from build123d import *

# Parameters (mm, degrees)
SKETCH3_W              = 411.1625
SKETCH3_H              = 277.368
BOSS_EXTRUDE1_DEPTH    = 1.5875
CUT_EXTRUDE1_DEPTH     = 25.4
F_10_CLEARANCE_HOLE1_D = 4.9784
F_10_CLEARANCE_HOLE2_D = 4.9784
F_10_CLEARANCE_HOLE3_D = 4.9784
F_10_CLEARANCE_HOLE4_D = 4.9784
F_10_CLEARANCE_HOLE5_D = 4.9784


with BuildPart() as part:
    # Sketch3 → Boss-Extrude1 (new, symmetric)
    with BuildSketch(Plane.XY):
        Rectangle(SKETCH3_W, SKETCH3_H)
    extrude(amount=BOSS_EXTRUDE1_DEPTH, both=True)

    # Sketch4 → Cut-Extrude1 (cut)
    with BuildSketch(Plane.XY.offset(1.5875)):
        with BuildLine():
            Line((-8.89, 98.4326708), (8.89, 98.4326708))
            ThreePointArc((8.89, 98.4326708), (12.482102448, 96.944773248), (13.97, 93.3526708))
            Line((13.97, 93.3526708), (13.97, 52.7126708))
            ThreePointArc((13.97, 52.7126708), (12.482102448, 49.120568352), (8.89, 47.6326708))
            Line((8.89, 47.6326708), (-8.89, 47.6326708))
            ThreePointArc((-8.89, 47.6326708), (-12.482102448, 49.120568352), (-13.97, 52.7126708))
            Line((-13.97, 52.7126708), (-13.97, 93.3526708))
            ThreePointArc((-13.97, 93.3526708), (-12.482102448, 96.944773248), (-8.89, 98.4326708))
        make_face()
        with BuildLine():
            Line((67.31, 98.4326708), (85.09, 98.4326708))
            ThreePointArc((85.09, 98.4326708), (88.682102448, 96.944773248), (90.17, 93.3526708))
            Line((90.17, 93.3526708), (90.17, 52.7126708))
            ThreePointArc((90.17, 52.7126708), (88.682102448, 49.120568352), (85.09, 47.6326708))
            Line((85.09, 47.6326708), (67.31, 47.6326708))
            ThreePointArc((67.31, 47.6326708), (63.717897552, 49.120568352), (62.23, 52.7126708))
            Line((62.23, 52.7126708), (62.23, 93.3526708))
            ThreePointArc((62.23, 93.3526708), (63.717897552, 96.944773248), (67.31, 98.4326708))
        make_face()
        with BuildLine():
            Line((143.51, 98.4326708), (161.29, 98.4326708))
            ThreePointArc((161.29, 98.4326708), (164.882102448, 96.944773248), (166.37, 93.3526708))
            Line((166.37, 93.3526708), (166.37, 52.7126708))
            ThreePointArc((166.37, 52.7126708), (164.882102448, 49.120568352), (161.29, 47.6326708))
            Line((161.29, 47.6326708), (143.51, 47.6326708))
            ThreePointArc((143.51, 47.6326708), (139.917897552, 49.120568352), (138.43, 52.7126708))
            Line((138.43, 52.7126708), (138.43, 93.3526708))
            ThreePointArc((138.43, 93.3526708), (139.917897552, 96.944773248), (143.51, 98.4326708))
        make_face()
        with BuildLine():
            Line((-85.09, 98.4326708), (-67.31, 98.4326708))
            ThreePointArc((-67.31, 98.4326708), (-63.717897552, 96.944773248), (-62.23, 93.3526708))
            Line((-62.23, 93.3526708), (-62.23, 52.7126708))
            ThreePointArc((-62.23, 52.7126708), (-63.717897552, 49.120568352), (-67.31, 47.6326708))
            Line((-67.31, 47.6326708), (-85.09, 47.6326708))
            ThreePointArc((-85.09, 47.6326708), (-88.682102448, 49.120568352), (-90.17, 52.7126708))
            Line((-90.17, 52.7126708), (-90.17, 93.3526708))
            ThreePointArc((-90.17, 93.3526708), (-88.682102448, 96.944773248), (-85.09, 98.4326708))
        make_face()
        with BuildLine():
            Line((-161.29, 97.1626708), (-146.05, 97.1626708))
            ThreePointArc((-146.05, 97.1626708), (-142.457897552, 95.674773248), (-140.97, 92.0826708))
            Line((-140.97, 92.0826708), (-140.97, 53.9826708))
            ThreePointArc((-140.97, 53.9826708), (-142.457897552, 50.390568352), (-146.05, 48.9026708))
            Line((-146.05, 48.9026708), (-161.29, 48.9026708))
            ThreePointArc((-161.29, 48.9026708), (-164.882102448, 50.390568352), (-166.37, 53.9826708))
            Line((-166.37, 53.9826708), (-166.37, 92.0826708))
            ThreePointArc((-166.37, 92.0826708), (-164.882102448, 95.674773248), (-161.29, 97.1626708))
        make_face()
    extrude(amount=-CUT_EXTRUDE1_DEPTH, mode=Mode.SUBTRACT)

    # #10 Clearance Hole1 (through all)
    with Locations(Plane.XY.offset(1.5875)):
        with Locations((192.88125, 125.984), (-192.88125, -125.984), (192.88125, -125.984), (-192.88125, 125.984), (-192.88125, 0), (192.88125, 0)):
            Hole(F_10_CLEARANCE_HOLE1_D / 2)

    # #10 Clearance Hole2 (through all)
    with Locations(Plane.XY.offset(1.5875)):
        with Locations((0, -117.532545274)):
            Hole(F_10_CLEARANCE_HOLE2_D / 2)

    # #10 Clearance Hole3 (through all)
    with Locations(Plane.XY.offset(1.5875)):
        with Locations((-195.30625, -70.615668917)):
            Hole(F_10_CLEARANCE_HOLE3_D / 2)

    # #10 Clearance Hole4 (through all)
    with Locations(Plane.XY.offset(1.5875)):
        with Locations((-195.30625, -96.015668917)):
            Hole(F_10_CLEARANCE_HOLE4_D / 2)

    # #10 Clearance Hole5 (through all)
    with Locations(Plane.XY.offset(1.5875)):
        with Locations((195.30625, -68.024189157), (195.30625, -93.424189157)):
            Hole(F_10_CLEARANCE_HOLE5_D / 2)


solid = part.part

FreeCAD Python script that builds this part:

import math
import FreeCAD as App
import Part
import Sketcher
from FreeCAD import Vector
Q = App.Units.Quantity


def add_polygon(sketch, points):
    """Adds a closed chain of lines whose ends are joined by coincident constraints."""
    first, n = sketch.GeometryCount, len(points)
    for a, b in zip(points, points[1:] + points[:1]):
        sketch.addGeometry(Part.LineSegment(App.Vector(*a, 0), App.Vector(*b, 0)), False)
    for i in range(n):
        sketch.addConstraint(Sketcher.Constraint("Coincident", first + i, 2, first + (i + 1) % n, 1))

doc = App.newDocument("Part")
body = doc.addObject("PartDesign::Body", "Body")

# Sketch on XY plane
sketch1 = body.newObject("Sketcher::SketchObject", "Sketch")
sketch1.AttachmentSupport = (doc.getObject("XY_Plane"), [""])
sketch1.MapMode = "FlatFace"
add_polygon(sketch1, [(-206, 139), (-206, -139), (206, -139), (206, 139)])  # lines 0-3
sketch1.addConstraint([
    Sketcher.Constraint("Vertical", 0),
    Sketcher.Constraint("Horizontal", 1),
    Sketcher.Constraint("Vertical", 2),
    Sketcher.Constraint("Horizontal", 3),
    Sketcher.Constraint("Symmetric", 0, 2, 2, 2, -1, 1),
    Sketcher.Constraint("DistanceY", 0, 2, 0, 1, Q("10.92 in")),
    Sketcher.Constraint("DistanceX", 1, 1, 1, 2, Q("16.1875 in")),
])
pad1 = body.newObject("PartDesign::Pad", "Pad")
pad1.Profile = sketch1
pad1.Length = Q("0.125 in")
pad1.Midplane = True

# Sketch on XY plane
sketch2 = body.newObject("Sketcher::SketchObject", "Sketch001")
sketch2.AttachmentSupport = (doc.getObject("XY_Plane"), [""])
sketch2.MapMode = "FlatFace"
sketch2.AttachmentOffset = App.Placement(Vector(0, 0, 0.0625 * 25.4), App.Rotation())
sketch2.addGeometry([
    Part.LineSegment(Vector(9, 98, 0), Vector(-9, 98, 0)),  # 0
    Part.ArcOfCircle(Part.Circle(Vector(-9, 93, 0), Vector(0, 0, 1), 5), math.radians(90), math.radians(180)),  # 1
    Part.LineSegment(Vector(-14, 93, 0), Vector(-14, 53, 0)),  # 2
    Part.ArcOfCircle(Part.Circle(Vector(-9, 53, 0), Vector(0, 0, 1), 5), math.radians(-180), math.radians(-90)),  # 3
    Part.LineSegment(Vector(-9, 48, 0), Vector(9, 48, 0)),  # 4
    Part.ArcOfCircle(Part.Circle(Vector(9, 53, 0), Vector(0, 0, 1), 5), math.radians(-90), math.radians(0)),  # 5
    Part.LineSegment(Vector(14, 53, 0), Vector(14, 93, 0)),  # 6
    Part.ArcOfCircle(Part.Circle(Vector(9, 93, 0), Vector(0, 0, 1), 5), math.radians(0), math.radians(90)),  # 7
    Part.LineSegment(Vector(85, 98, 0), Vector(67, 98, 0)),  # 8
    Part.ArcOfCircle(Part.Circle(Vector(67, 93, 0), Vector(0, 0, 1), 5), math.radians(90), math.radians(180)),  # 9
    Part.LineSegment(Vector(62, 93, 0), Vector(62, 53, 0)),  # 10
    Part.ArcOfCircle(Part.Circle(Vector(67, 53, 0), Vector(0, 0, 1), 5), math.radians(-180), math.radians(-90)),  # 11
    Part.LineSegment(Vector(67, 48, 0), Vector(85, 48, 0)),  # 12
    Part.ArcOfCircle(Part.Circle(Vector(85, 53, 0), Vector(0, 0, 1), 5), math.radians(-90), math.radians(0)),  # 13
    Part.LineSegment(Vector(90, 53, 0), Vector(90, 93, 0)),  # 14
    Part.ArcOfCircle(Part.Circle(Vector(85, 93, 0), Vector(0, 0, 1), 5), math.radians(0), math.radians(90)),  # 15
    Part.LineSegment(Vector(161, 98, 0), Vector(144, 98, 0)),  # 16
    Part.ArcOfCircle(Part.Circle(Vector(144, 93, 0), Vector(0, 0, 1), 5), math.radians(90), math.radians(180)),  # 17
    Part.LineSegment(Vector(138, 93, 0), Vector(138, 53, 0)),  # 18
    Part.ArcOfCircle(Part.Circle(Vector(144, 53, 0), Vector(0, 0, 1), 5), math.radians(-180), math.radians(-90)),  # 19
    Part.LineSegment(Vector(144, 48, 0), Vector(161, 48, 0)),  # 20
    Part.ArcOfCircle(Part.Circle(Vector(161, 53, 0), Vector(0, 0, 1), 5), math.radians(-90), math.radians(0)),  # 21
    Part.LineSegment(Vector(166, 53, 0), Vector(166, 93, 0)),  # 22
    Part.ArcOfCircle(Part.Circle(Vector(161, 93, 0), Vector(0, 0, 1), 5), math.radians(0), math.radians(90)),  # 23
    Part.LineSegment(Vector(-67, 98, 0), Vector(-85, 98, 0)),  # 24
    Part.ArcOfCircle(Part.Circle(Vector(-85, 93, 0), Vector(0, 0, 1), 5), math.radians(90), math.radians(180)),  # 25
    Part.LineSegment(Vector(-90, 93, 0), Vector(-90, 53, 0)),  # 26
    Part.ArcOfCircle(Part.Circle(Vector(-85, 53, 0), Vector(0, 0, 1), 5), math.radians(-180), math.radians(-90)),  # 27
    Part.LineSegment(Vector(-85, 48, 0), Vector(-67, 48, 0)),  # 28
    Part.ArcOfCircle(Part.Circle(Vector(-67, 53, 0), Vector(0, 0, 1), 5), math.radians(-90), math.radians(0)),  # 29
    Part.LineSegment(Vector(-62, 53, 0), Vector(-62, 93, 0)),  # 30
    Part.ArcOfCircle(Part.Circle(Vector(-67, 93, 0), Vector(0, 0, 1), 5), math.radians(0), math.radians(90)),  # 31
    Part.LineSegment(Vector(-146, 97, 0), Vector(-161, 97, 0)),  # 32
    Part.ArcOfCircle(Part.Circle(Vector(-161, 92, 0), Vector(0, 0, 1), 5), math.radians(90), math.radians(180)),  # 33
    Part.LineSegment(Vector(-166, 92, 0), Vector(-166, 54, 0)),  # 34
    Part.ArcOfCircle(Part.Circle(Vector(-161, 54, 0), Vector(0, 0, 1), 5), math.radians(-180), math.radians(-90)),  # 35
    Part.LineSegment(Vector(-161, 49, 0), Vector(-146, 49, 0)),  # 36
    Part.ArcOfCircle(Part.Circle(Vector(-146, 54, 0), Vector(0, 0, 1), 5), math.radians(-90), math.radians(0)),  # 37
    Part.LineSegment(Vector(-141, 54, 0), Vector(-141, 92, 0)),  # 38
    Part.ArcOfCircle(Part.Circle(Vector(-146, 92, 0), Vector(0, 0, 1), 5), math.radians(0), math.radians(90)),  # 39
], False)
sketch2.addConstraint([
    Sketcher.Constraint("Tangent", 0, 2, 1, 1),
    Sketcher.Constraint("Tangent", 1, 2, 2, 1),
    Sketcher.Constraint("Tangent", 2, 2, 3, 1),
    Sketcher.Constraint("Tangent", 3, 2, 4, 1),
    Sketcher.Constraint("Tangent", 4, 2, 5, 1),
    Sketcher.Constraint("Tangent", 5, 2, 6, 1),
    Sketcher.Constraint("Tangent", 6, 2, 7, 1),
    Sketcher.Constraint("Tangent", 7, 2, 0, 1),
    Sketcher.Constraint("Tangent", 8, 2, 9, 1),
    Sketcher.Constraint("Tangent", 9, 2, 10, 1),
    Sketcher.Constraint("Tangent", 10, 2, 11, 1),
    Sketcher.Constraint("Tangent", 11, 2, 12, 1),
    Sketcher.Constraint("Tangent", 12, 2, 13, 1),
    Sketcher.Constraint("Tangent", 13, 2, 14, 1),
    Sketcher.Constraint("Tangent", 14, 2, 15, 1),
    Sketcher.Constraint("Tangent", 15, 2, 8, 1),
    Sketcher.Constraint("Tangent", 16, 2, 17, 1),
    Sketcher.Constraint("Tangent", 17, 2, 18, 1),
    Sketcher.Constraint("Tangent", 18, 2, 19, 1),
    Sketcher.Constraint("Tangent", 19, 2, 20, 1),
    Sketcher.Constraint("Tangent", 20, 2, 21, 1),
    Sketcher.Constraint("Tangent", 21, 2, 22, 1),
    Sketcher.Constraint("Tangent", 22, 2, 23, 1),
    Sketcher.Constraint("Tangent", 23, 2, 16, 1),
    Sketcher.Constraint("Tangent", 24, 2, 25, 1),
    Sketcher.Constraint("Tangent", 25, 2, 26, 1),
    Sketcher.Constraint("Tangent", 26, 2, 27, 1),
    Sketcher.Constraint("Tangent", 27, 2, 28, 1),
    Sketcher.Constraint("Tangent", 28, 2, 29, 1),
    Sketcher.Constraint("Tangent", 29, 2, 30, 1),
    Sketcher.Constraint("Tangent", 30, 2, 31, 1),
    Sketcher.Constraint("Tangent", 31, 2, 24, 1),
    Sketcher.Constraint("Tangent", 32, 2, 33, 1),
    Sketcher.Constraint("Tangent", 33, 2, 34, 1),
    Sketcher.Constraint("Tangent", 34, 2, 35, 1),
    Sketcher.Constraint("Tangent", 35, 2, 36, 1),
    Sketcher.Constraint("Tangent", 36, 2, 37, 1),
    Sketcher.Constraint("Tangent", 37, 2, 38, 1),
    Sketcher.Constraint("Tangent", 38, 2, 39, 1),
    Sketcher.Constraint("Tangent", 39, 2, 32, 1),
    Sketcher.Constraint("Horizontal", 0),
    Sketcher.Constraint("Vertical", 2),
    Sketcher.Constraint("Horizontal", 4),
    Sketcher.Constraint("Vertical", 6),
    Sketcher.Constraint("Horizontal", 8),
    Sketcher.Constraint("Vertical", 10),
    Sketcher.Constraint("Horizontal", 12),
    Sketcher.Constraint("Vertical", 14),
    Sketcher.Constraint("Horizontal", 16),
    Sketcher.Constraint("Vertical", 18),
    Sketcher.Constraint("Horizontal", 20),
    Sketcher.Constraint("Vertical", 22),
    Sketcher.Constraint("Horizontal", 24),
    Sketcher.Constraint("Vertical", 26),
    Sketcher.Constraint("Horizontal", 28),
    Sketcher.Constraint("Vertical", 30),
    Sketcher.Constraint("Horizontal", 32),
    Sketcher.Constraint("Vertical", 34),
    Sketcher.Constraint("Horizontal", 36),
    Sketcher.Constraint("Vertical", 38),
    Sketcher.Constraint("Equal", 1, 3),
    Sketcher.Constraint("Equal", 3, 5),
    Sketcher.Constraint("Equal", 5, 7),
    Sketcher.Constraint("Equal", 7, 9),
    Sketcher.Constraint("Equal", 9, 11),
    Sketcher.Constraint("Equal", 11, 13),
    Sketcher.Constraint("Equal", 13, 15),
    Sketcher.Constraint("Equal", 15, 17),
    Sketcher.Constraint("Equal", 17, 19),
    Sketcher.Constraint("Equal", 19, 21),
    Sketcher.Constraint("Equal", 21, 23),
    Sketcher.Constraint("Equal", 23, 25),
    Sketcher.Constraint("Equal", 25, 27),
    Sketcher.Constraint("Equal", 27, 29),
    Sketcher.Constraint("Equal", 29, 31),
    Sketcher.Constraint("Equal", 31, 33),
    Sketcher.Constraint("Equal", 33, 35),
    Sketcher.Constraint("Equal", 35, 37),
    Sketcher.Constraint("Equal", 37, 39),
    Sketcher.Constraint("Symmetric", 15, 3, 25, 3, -2),
    Sketcher.Constraint("Symmetric", 11, 3, 29, 3, -2),
    Sketcher.Constraint("Horizontal", 7, 3, 9, 3),
    Sketcher.Constraint("Horizontal", 5, 3, 11, 3),
    Sketcher.Constraint("Horizontal", 15, 3, 17, 3),
    Sketcher.Constraint("Horizontal", 13, 3, 19, 3),
    Sketcher.Constraint("Equal", 4, 8),
    Sketcher.Constraint("Equal", 12, 16),
    Sketcher.Constraint("Radius", 1, Q("0.2 in")),
    Sketcher.Constraint("DistanceX", 0, 2, 0, 1, Q("0.7 in")),
    Sketcher.Constraint("DistanceX", 32, 2, 32, 1, Q("0.6 in")),
    Sketcher.Constraint("DistanceY", 2, 2, 2, 1, Q("1.6 in")),
    Sketcher.Constraint("DistanceY", 34, 2, 34, 1, Q("1.5 in")),
    Sketcher.Constraint("DistanceX", 1, 3, 9, 3, Q("3 in")),
    Sketcher.Constraint("DistanceX", 9, 3, 17, 3, Q("3 in")),
    Sketcher.Constraint("DistanceX", 25, 3, 1, 3, Q("3 in")),
    Sketcher.Constraint("DistanceX", 33, 3, 25, 3, Q("3 in")),
    Sketcher.Constraint("DistanceY", 33, 3, 25, 3, Q("0.05 in")),
    Sketcher.Constraint("DistanceY", -1, 1, 1, 3, 93.352671),
])
pocket1 = body.newObject("PartDesign::Pocket", "Pocket")
pocket1.Profile = sketch2
pocket1.Length = Q("1 in")

# Sketch on XY plane
sketch3 = body.newObject("Sketcher::SketchObject", "Sketch002")
sketch3.AttachmentSupport = (doc.getObject("XY_Plane"), [""])
sketch3.MapMode = "FlatFace"
sketch3.AttachmentOffset = App.Placement(Vector(0, 0, 0.0625 * 25.4), App.Rotation())
sketch3.addGeometry([
    Part.Circle(Vector(192.9, 126, 0), Vector(0, 0, 1), 2.5),  # 0
    Part.Circle(Vector(-192.9, -126, 0), Vector(0, 0, 1), 2.5),  # 1
    Part.Circle(Vector(192.9, -126, 0), Vector(0, 0, 1), 2.5),  # 2
    Part.Circle(Vector(-192.9, 126, 0), Vector(0, 0, 1), 2.5),  # 3
    Part.Circle(Vector(-192.9, 0, 0), Vector(0, 0, 1), 2.5),  # 4
    Part.Circle(Vector(192.9, 0, 0), Vector(0, 0, 1), 2.5),  # 5
], False)
sketch3.addConstraint([
    Sketcher.Constraint("Equal", 0, 1),
    Sketcher.Constraint("Equal", 1, 2),
    Sketcher.Constraint("Equal", 2, 3),
    Sketcher.Constraint("Equal", 3, 4),
    Sketcher.Constraint("Equal", 4, 5),
    Sketcher.Constraint("Symmetric", 0, 3, 1, 3, -1, 1),
    Sketcher.Constraint("Symmetric", 2, 3, 3, 3, -1, 1),
    Sketcher.Constraint("Symmetric", 4, 3, 5, 3, -1, 1),
    Sketcher.Constraint("Symmetric", 1, 3, 2, 3, -2),
    Sketcher.Constraint("PointOnObject", 4, 3, -1),
    Sketcher.Constraint("Vertical", 3, 3, 4, 3),
    Sketcher.Constraint("Diameter", 0, Q("0.196 in")),
    Sketcher.Constraint("DistanceY", -1, 1, 0, 3, Q("4.96 in")),
    Sketcher.Constraint("DistanceX", -1, 1, 0, 3, Q("7.59375 in")),
])
doc.recompute()
hole = body.newObject("PartDesign::Hole", "Hole")
hole.Profile = sketch3
hole.ThreadType = "None"
hole.Diameter = Q("0.196 in")
hole.DepthType = "ThroughAll"

# Sketch on XY plane
sketch4 = body.newObject("Sketcher::SketchObject", "Sketch003")
sketch4.AttachmentSupport = (doc.getObject("XY_Plane"), [""])
sketch4.MapMode = "FlatFace"
sketch4.AttachmentOffset = App.Placement(Vector(0, 0, 0.0625 * 25.4), App.Rotation())
sketch4.addGeometry(Part.Circle(Vector(0, -117.5, 0), Vector(0, 0, 1), 2.5), False)
sketch4.addConstraint([
    Sketcher.Constraint("PointOnObject", 0, 3, -2),
    Sketcher.Constraint("Diameter", 0, Q("0.196 in")),
    Sketcher.Constraint("DistanceY", 0, 3, -1, 1, 117.532545),
])
doc.recompute()
hole2 = body.newObject("PartDesign::Hole", "Hole001")
hole2.Profile = sketch4
hole2.ThreadType = "None"
hole2.Diameter = Q("0.196 in")
hole2.DepthType = "ThroughAll"

# Sketch on XY plane
sketch5 = body.newObject("Sketcher::SketchObject", "Sketch004")
sketch5.AttachmentSupport = (doc.getObject("XY_Plane"), [""])
sketch5.MapMode = "FlatFace"
sketch5.AttachmentOffset = App.Placement(Vector(0, 0, 0.0625 * 25.4), App.Rotation())
sketch5.addGeometry(Part.Circle(Vector(-195.3, -70.6, 0), Vector(0, 0, 1), 2.5), False)
sketch5.addConstraint([
    Sketcher.Constraint("Diameter", 0, Q("0.196 in")),
    Sketcher.Constraint("DistanceX", 0, 3, -1, 1, 195.30625),
    Sketcher.Constraint("DistanceY", 0, 3, -1, 1, 70.615669),
])
doc.recompute()
hole3 = body.newObject("PartDesign::Hole", "Hole002")
hole3.Profile = sketch5
hole3.ThreadType = "None"
hole3.Diameter = Q("0.196 in")
hole3.DepthType = "ThroughAll"

# Sketch on XY plane
sketch6 = body.newObject("Sketcher::SketchObject", "Sketch005")
sketch6.AttachmentSupport = (doc.getObject("XY_Plane"), [""])
sketch6.MapMode = "FlatFace"
sketch6.AttachmentOffset = App.Placement(Vector(0, 0, 0.0625 * 25.4), App.Rotation())
sketch6.addGeometry(Part.Circle(Vector(-195.3, -96, 0), Vector(0, 0, 1), 2.5), False)
sketch6.addConstraint([
    Sketcher.Constraint("Diameter", 0, Q("0.196 in")),
    Sketcher.Constraint("DistanceX", 0, 3, -1, 1, 195.30625),
    Sketcher.Constraint("DistanceY", 0, 3, -1, 1, 96.015669),
])
doc.recompute()
hole4 = body.newObject("PartDesign::Hole", "Hole003")
hole4.Profile = sketch6
hole4.ThreadType = "None"
hole4.Diameter = Q("0.196 in")
hole4.DepthType = "ThroughAll"

# Sketch on XY plane
sketch7 = body.newObject("Sketcher::SketchObject", "Sketch006")
sketch7.AttachmentSupport = (doc.getObject("XY_Plane"), [""])
sketch7.MapMode = "FlatFace"
sketch7.AttachmentOffset = App.Placement(Vector(0, 0, 0.0625 * 25.4), App.Rotation())
sketch7.addGeometry([
    Part.Circle(Vector(195.3, -68, 0), Vector(0, 0, 1), 2.5),
    Part.Circle(Vector(195.3, -93.4, 0), Vector(0, 0, 1), 2.5),
], False)
sketch7.addConstraint([
    Sketcher.Constraint("Equal", 0, 1),
    Sketcher.Constraint("Vertical", 0, 3, 1, 3),
    Sketcher.Constraint("Diameter", 0, Q("0.196 in")),
    Sketcher.Constraint("DistanceY", 1, 3, 0, 3, Q("1 in")),
    Sketcher.Constraint("DistanceX", -1, 1, 0, 3, 195.30625),
    Sketcher.Constraint("DistanceY", 0, 3, -1, 1, 68.024189),
])
doc.recompute()
hole5 = body.newObject("PartDesign::Hole", "Hole004")
hole5.Profile = sketch7
hole5.ThreadType = "None"
hole5.Diameter = Q("0.196 in")
hole5.DepthType = "ThroughAll"

doc.recompute()
